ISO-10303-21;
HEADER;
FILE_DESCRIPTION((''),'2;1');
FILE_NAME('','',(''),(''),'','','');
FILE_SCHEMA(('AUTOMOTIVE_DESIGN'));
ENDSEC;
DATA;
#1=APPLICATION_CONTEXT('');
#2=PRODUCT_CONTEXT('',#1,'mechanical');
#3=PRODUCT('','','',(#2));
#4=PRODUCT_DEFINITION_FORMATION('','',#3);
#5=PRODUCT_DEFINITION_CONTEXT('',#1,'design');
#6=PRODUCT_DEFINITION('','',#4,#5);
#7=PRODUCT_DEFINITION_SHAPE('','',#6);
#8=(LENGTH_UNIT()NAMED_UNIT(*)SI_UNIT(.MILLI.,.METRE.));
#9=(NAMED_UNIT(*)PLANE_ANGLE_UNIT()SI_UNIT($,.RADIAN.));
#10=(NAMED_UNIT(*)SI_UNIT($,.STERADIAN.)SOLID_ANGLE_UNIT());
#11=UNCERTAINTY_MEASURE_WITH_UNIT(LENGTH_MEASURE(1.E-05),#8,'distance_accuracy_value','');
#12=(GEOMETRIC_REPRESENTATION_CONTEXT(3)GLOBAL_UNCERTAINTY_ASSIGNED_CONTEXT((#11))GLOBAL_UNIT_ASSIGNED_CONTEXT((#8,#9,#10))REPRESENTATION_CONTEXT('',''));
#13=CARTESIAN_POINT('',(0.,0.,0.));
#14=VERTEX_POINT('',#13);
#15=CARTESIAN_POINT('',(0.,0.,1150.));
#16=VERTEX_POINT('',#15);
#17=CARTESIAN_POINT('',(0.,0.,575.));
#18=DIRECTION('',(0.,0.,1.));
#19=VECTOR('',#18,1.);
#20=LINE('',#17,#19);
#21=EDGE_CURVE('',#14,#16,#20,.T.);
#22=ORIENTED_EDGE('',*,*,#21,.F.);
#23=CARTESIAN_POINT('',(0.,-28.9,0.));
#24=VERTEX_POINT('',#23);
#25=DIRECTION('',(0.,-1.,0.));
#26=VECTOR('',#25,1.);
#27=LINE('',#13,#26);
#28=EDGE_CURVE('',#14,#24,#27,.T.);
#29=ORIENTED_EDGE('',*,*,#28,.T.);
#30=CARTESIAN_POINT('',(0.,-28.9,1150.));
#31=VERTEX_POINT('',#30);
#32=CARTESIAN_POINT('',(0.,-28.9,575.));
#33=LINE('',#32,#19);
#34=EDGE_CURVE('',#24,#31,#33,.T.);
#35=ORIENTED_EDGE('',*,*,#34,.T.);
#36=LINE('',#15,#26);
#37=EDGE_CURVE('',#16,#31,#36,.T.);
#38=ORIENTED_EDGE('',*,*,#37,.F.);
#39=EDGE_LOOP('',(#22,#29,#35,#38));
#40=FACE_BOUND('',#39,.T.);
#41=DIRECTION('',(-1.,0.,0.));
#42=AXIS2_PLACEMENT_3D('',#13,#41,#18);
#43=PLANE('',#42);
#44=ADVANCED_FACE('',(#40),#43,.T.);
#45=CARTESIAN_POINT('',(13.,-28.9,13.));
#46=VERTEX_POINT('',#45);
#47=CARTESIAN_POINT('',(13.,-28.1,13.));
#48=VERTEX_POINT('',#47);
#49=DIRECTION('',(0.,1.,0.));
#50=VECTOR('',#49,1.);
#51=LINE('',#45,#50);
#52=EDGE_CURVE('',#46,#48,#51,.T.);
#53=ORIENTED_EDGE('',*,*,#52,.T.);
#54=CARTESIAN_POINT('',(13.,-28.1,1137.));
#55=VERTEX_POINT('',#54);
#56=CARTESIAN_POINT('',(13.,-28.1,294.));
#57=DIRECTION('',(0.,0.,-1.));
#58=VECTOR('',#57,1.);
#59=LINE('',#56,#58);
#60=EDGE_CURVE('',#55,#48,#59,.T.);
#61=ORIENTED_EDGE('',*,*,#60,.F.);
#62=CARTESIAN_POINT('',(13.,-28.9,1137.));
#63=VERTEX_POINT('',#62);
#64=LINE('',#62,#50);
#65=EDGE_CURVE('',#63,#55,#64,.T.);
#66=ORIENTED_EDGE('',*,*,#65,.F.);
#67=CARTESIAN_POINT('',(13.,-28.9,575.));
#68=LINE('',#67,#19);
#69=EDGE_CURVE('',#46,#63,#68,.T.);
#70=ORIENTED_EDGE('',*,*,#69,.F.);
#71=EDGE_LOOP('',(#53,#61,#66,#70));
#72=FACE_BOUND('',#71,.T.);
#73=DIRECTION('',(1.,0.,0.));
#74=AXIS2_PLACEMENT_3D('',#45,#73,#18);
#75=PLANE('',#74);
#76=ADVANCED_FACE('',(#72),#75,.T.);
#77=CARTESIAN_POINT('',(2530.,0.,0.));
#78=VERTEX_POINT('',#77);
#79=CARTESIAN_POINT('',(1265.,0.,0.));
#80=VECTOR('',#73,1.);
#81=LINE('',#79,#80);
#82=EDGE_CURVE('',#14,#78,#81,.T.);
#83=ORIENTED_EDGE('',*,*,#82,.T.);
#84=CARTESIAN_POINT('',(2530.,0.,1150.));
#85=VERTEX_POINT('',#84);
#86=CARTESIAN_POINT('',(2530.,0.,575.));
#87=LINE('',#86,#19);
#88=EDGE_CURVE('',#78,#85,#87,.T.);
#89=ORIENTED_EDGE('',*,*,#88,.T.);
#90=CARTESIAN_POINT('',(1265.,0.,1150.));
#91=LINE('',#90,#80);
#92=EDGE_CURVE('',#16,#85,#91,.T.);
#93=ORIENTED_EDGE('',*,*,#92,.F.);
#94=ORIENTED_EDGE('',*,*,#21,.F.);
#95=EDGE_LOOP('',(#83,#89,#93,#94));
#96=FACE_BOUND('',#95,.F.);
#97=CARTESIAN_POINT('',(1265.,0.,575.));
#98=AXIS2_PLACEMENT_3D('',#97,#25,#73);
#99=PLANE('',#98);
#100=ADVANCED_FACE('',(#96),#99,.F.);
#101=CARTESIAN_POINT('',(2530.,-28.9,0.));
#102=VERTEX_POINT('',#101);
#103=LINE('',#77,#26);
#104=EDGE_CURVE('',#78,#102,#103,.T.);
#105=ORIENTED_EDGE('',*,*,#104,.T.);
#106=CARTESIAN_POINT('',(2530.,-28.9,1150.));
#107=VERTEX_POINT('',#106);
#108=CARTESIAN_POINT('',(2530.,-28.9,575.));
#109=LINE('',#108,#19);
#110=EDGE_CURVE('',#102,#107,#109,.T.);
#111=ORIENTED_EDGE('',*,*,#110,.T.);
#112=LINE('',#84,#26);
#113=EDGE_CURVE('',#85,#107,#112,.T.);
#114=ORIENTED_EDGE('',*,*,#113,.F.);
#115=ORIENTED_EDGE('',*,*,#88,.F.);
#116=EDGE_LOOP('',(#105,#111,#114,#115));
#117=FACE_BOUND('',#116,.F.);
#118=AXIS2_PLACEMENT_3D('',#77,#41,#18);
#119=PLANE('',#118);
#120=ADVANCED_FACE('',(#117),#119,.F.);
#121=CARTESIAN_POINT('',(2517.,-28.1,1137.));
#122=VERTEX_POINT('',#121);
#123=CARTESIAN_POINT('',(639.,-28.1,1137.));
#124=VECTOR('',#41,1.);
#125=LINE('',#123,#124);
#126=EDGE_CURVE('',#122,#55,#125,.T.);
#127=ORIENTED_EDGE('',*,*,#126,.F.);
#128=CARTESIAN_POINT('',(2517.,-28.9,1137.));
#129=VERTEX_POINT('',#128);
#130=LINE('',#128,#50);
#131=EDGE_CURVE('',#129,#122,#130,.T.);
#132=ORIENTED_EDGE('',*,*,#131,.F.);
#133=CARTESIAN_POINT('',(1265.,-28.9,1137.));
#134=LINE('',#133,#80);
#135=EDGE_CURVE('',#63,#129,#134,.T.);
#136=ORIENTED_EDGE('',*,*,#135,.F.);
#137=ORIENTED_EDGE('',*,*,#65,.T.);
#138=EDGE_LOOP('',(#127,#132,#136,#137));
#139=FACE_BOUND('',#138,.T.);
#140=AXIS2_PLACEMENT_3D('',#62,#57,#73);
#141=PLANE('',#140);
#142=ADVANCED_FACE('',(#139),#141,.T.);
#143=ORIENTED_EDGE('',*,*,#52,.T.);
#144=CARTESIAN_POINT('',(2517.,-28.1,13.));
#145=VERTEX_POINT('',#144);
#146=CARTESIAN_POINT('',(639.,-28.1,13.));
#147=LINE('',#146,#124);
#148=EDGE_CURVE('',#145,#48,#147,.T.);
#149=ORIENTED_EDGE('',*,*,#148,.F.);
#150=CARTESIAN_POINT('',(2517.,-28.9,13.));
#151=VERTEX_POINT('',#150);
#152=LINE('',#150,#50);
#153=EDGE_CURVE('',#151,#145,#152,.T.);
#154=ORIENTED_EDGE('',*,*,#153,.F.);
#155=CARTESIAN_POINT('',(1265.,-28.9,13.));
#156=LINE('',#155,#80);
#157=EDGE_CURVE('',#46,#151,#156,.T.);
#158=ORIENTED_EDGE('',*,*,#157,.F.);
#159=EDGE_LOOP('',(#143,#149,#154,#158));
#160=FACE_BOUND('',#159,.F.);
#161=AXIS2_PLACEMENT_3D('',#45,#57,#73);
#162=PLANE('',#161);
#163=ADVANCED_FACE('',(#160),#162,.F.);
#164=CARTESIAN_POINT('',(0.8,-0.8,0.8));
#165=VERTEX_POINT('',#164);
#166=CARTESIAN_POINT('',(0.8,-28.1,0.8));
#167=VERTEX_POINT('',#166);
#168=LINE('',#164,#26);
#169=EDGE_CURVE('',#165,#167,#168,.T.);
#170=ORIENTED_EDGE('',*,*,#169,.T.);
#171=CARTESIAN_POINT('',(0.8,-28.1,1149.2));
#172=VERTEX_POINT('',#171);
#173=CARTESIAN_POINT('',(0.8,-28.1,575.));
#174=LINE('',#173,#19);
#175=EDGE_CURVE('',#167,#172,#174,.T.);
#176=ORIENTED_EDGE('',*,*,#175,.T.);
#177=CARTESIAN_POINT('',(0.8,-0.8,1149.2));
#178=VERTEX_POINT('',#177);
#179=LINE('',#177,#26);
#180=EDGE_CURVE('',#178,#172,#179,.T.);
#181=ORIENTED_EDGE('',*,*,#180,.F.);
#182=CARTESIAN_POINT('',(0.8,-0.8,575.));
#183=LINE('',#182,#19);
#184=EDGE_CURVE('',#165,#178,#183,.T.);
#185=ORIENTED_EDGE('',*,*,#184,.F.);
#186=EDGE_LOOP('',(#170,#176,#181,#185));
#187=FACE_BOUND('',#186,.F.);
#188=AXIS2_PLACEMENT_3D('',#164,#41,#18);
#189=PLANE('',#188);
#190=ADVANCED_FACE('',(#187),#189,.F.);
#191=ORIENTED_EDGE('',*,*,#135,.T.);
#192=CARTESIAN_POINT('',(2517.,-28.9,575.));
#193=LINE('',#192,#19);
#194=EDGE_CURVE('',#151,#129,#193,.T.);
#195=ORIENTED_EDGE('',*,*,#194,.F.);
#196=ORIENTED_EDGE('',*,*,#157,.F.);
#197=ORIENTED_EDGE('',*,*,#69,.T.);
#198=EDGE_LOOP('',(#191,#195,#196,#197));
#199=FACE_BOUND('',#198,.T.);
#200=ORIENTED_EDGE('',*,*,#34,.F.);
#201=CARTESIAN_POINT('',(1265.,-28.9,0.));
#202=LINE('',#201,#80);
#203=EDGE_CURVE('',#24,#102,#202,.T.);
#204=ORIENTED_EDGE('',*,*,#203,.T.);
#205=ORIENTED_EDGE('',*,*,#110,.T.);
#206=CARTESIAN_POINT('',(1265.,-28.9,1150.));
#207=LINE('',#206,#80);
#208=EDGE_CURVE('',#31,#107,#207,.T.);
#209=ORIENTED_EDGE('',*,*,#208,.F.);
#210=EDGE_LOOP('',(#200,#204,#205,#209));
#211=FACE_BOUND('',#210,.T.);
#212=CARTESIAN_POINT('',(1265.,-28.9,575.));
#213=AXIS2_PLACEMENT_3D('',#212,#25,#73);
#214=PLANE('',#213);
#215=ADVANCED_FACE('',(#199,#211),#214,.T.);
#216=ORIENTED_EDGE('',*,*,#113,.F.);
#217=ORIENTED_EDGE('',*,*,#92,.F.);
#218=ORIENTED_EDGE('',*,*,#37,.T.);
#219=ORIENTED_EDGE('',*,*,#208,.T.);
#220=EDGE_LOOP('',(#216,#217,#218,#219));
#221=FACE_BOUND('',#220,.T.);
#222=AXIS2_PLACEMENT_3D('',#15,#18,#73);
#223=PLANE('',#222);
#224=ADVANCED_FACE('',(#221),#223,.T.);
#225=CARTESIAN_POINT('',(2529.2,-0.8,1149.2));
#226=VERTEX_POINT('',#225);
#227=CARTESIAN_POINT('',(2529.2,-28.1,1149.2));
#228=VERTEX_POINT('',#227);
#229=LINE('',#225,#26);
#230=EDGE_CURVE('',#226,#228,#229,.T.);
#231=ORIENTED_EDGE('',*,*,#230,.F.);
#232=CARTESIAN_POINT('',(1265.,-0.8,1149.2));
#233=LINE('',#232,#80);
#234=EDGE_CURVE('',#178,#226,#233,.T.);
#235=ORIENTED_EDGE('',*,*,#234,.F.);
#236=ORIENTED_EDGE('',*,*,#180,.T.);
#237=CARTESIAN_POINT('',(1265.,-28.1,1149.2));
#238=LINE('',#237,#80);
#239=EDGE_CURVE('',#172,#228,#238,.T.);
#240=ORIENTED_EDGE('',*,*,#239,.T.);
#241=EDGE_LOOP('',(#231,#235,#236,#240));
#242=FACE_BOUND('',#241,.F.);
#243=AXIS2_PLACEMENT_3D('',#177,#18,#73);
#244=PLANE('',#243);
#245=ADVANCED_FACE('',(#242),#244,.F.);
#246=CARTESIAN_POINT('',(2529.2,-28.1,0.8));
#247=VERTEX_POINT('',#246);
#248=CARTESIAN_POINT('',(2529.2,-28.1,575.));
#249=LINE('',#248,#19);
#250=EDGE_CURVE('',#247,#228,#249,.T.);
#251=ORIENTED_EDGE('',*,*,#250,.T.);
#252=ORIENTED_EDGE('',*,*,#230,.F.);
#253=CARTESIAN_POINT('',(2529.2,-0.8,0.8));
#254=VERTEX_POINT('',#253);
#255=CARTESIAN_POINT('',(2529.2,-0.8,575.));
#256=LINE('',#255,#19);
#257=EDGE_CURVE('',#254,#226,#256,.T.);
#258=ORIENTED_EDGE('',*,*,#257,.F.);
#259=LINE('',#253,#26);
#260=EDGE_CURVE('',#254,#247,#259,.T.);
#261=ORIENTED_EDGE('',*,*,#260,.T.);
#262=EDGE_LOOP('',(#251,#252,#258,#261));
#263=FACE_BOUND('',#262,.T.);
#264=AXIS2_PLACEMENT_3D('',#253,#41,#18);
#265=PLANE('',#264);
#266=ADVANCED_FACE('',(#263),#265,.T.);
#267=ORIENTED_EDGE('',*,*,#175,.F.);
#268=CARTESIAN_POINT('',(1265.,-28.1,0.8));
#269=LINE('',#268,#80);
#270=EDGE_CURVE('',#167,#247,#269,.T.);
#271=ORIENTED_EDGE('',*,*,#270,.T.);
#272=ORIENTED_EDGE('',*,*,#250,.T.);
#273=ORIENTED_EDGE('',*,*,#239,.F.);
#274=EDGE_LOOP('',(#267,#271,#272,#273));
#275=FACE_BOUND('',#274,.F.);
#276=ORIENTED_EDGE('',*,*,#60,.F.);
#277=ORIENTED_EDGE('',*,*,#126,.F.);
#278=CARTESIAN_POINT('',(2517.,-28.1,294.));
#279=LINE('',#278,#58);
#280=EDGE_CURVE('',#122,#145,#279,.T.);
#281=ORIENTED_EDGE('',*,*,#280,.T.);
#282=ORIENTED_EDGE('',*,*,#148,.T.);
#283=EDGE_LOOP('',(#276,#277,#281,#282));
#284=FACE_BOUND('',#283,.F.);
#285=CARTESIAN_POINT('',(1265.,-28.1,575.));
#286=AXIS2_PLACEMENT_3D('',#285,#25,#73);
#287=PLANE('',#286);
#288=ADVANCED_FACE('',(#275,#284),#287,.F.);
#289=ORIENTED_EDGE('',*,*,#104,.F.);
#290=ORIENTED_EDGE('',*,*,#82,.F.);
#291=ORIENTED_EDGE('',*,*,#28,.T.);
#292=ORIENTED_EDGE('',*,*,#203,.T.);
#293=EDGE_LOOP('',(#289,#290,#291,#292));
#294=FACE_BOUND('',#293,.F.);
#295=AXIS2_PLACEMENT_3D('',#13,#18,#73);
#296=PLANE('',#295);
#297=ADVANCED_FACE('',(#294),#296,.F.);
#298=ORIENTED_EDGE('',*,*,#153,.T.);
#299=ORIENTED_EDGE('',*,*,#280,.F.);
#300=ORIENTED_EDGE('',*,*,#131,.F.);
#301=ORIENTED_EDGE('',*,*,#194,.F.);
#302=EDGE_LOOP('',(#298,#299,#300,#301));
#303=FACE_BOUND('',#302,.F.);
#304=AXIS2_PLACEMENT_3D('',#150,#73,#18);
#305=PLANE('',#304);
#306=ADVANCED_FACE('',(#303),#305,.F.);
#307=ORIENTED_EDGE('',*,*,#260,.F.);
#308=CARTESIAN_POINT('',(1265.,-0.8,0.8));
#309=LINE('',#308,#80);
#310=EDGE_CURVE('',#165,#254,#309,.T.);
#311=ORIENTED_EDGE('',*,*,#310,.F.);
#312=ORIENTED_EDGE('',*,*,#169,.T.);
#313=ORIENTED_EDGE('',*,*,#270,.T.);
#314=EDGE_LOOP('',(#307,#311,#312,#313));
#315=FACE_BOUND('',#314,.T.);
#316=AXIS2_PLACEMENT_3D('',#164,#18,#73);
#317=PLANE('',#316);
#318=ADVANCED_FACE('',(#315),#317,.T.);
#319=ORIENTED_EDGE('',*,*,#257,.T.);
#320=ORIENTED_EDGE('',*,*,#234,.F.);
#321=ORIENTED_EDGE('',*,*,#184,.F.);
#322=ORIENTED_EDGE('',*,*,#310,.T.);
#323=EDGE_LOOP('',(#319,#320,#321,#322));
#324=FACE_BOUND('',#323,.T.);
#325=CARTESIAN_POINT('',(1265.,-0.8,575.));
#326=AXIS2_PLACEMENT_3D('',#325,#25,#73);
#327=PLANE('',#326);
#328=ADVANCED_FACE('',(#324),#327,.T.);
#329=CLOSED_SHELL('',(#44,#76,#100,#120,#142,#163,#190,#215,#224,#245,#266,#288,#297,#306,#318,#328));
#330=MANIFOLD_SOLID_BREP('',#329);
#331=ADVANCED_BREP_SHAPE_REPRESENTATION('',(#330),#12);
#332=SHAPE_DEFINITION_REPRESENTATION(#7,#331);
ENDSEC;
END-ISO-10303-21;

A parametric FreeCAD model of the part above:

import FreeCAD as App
import Part
import Sketcher
from FreeCAD import Vector
Q = App.Units.Quantity


def add_polygon(sketch, points):
    """Adds a closed chain of lines whose ends are joined by coincident constraints."""
    first, n = sketch.GeometryCount, len(points)
    for a, b in zip(points, points[1:] + points[:1]):
        sketch.addGeometry(Part.LineSegment(App.Vector(*a, 0), App.Vector(*b, 0)), False)
    for i in range(n):
        sketch.addConstraint(Sketcher.Constraint("Coincident", first + i, 2, first + (i + 1) % n, 1))

doc = App.newDocument("Part")
body = doc.addObject("PartDesign::Body", "Body")

# Sketch on XZ plane
sketch1 = doc.addObject("Sketcher::SketchObject", "Sketch")
body.addObject(sketch1)
sketch1.AttachmentSupport = (doc.XZ_Plane, [""])
sketch1.MapMode = "FlatFace"
add_polygon(sketch1, [(0, 1150), (0, 0), (2530, 0), (2530, 1150)])  # lines 0-3
sketch1.addConstraint(Sketcher.Constraint("Vertical", 0))
sketch1.addConstraint(Sketcher.Constraint("Horizontal", 1))
sketch1.addConstraint(Sketcher.Constraint("Vertical", 2))
sketch1.addConstraint(Sketcher.Constraint("Horizontal", 3))
sketch1.addConstraint(Sketcher.Constraint("Coincident", 0, 2, -1, 1))
sketch1.addConstraint(Sketcher.Constraint("DistanceX", 1, 1, 1, 2, Q("2530 mm")))
sketch1.addConstraint(Sketcher.Constraint("DistanceY", 0, 2, 0, 1, Q("1150 mm")))
pad1 = doc.addObject("PartDesign::Pad", "Pad")
body.addObject(pad1)
pad1.Profile = sketch1
pad1.Length = 28.9

# Sketch on XZ plane
sketch2 = doc.addObject("Sketcher::SketchObject", "Sketch001")
body.addObject(sketch2)
sketch2.AttachmentSupport = (doc.XZ_Plane, [""])
sketch2.MapMode = "FlatFace"
sketch2.AttachmentOffset = App.Placement(Vector(0, 0, 28.9), App.Rotation())
add_polygon(sketch2, [(13, 1137), (13, 13), (2517, 13), (2517, 1137)])  # lines 0-3
sketch2.addConstraint(Sketcher.Constraint("Vertical", 0))
sketch2.addConstraint(Sketcher.Constraint("Horizontal", 1))
sketch2.addConstraint(Sketcher.Constraint("Vertical", 2))
sketch2.addConstraint(Sketcher.Constraint("Horizontal", 3))
sketch2.addConstraint(Sketcher.Constraint("DistanceX", 1, 1, 1, 2, Q("2504 mm")))
sketch2.addConstraint(Sketcher.Constraint("DistanceY", 0, 2, 0, 1, Q("1124 mm")))
sketch2.addConstraint(Sketcher.Constraint("DistanceX", -1, 1, 0, 2, Q("13 mm")))
sketch2.addConstraint(Sketcher.Constraint("DistanceY", -1, 1, 0, 2, Q("13 mm")))
pocket1 = doc.addObject("PartDesign::Pocket", "Pocket")
body.addObject(pocket1)
pocket1.Profile = sketch2
pocket1.Length = 28.1

# Sketch on XZ plane
sketch3 = doc.addObject("Sketcher::SketchObject", "Sketch002")
body.addObject(sketch3)
sketch3.AttachmentSupport = (doc.XZ_Plane, [""])
sketch3.MapMode = "FlatFace"
sketch3.AttachmentOffset = App.Placement(Vector(0, 0, 0.8), App.Rotation())
add_polygon(sketch3, [(1, 1149), (1, 1), (2529, 1), (2529, 1149)])  # lines 0-3
sketch3.addConstraint(Sketcher.Constraint("Vertical", 0))
sketch3.addConstraint(Sketcher.Constraint("Horizontal", 1))
sketch3.addConstraint(Sketcher.Constraint("Vertical", 2))
sketch3.addConstraint(Sketcher.Constraint("Horizontal", 3))
sketch3.addConstraint(Sketcher.Constraint("DistanceX", 1, 1, 1, 2, Q("2528.4 mm")))
sketch3.addConstraint(Sketcher.Constraint("DistanceY", 0, 2, 0, 1, Q("1148.4 mm")))
sketch3.addConstraint(Sketcher.Constraint("DistanceX", -1, 1, 0, 2, Q("0.8 mm")))
sketch3.addConstraint(Sketcher.Constraint("DistanceY", -1, 1, 0, 2, Q("0.8 mm")))
pocket2 = doc.addObject("PartDesign::Pocket", "Pocket001")
body.addObject(pocket2)
pocket2.Profile = sketch3
pocket2.Length = 27.3
pocket2.Reversed = True

doc.recompute()
